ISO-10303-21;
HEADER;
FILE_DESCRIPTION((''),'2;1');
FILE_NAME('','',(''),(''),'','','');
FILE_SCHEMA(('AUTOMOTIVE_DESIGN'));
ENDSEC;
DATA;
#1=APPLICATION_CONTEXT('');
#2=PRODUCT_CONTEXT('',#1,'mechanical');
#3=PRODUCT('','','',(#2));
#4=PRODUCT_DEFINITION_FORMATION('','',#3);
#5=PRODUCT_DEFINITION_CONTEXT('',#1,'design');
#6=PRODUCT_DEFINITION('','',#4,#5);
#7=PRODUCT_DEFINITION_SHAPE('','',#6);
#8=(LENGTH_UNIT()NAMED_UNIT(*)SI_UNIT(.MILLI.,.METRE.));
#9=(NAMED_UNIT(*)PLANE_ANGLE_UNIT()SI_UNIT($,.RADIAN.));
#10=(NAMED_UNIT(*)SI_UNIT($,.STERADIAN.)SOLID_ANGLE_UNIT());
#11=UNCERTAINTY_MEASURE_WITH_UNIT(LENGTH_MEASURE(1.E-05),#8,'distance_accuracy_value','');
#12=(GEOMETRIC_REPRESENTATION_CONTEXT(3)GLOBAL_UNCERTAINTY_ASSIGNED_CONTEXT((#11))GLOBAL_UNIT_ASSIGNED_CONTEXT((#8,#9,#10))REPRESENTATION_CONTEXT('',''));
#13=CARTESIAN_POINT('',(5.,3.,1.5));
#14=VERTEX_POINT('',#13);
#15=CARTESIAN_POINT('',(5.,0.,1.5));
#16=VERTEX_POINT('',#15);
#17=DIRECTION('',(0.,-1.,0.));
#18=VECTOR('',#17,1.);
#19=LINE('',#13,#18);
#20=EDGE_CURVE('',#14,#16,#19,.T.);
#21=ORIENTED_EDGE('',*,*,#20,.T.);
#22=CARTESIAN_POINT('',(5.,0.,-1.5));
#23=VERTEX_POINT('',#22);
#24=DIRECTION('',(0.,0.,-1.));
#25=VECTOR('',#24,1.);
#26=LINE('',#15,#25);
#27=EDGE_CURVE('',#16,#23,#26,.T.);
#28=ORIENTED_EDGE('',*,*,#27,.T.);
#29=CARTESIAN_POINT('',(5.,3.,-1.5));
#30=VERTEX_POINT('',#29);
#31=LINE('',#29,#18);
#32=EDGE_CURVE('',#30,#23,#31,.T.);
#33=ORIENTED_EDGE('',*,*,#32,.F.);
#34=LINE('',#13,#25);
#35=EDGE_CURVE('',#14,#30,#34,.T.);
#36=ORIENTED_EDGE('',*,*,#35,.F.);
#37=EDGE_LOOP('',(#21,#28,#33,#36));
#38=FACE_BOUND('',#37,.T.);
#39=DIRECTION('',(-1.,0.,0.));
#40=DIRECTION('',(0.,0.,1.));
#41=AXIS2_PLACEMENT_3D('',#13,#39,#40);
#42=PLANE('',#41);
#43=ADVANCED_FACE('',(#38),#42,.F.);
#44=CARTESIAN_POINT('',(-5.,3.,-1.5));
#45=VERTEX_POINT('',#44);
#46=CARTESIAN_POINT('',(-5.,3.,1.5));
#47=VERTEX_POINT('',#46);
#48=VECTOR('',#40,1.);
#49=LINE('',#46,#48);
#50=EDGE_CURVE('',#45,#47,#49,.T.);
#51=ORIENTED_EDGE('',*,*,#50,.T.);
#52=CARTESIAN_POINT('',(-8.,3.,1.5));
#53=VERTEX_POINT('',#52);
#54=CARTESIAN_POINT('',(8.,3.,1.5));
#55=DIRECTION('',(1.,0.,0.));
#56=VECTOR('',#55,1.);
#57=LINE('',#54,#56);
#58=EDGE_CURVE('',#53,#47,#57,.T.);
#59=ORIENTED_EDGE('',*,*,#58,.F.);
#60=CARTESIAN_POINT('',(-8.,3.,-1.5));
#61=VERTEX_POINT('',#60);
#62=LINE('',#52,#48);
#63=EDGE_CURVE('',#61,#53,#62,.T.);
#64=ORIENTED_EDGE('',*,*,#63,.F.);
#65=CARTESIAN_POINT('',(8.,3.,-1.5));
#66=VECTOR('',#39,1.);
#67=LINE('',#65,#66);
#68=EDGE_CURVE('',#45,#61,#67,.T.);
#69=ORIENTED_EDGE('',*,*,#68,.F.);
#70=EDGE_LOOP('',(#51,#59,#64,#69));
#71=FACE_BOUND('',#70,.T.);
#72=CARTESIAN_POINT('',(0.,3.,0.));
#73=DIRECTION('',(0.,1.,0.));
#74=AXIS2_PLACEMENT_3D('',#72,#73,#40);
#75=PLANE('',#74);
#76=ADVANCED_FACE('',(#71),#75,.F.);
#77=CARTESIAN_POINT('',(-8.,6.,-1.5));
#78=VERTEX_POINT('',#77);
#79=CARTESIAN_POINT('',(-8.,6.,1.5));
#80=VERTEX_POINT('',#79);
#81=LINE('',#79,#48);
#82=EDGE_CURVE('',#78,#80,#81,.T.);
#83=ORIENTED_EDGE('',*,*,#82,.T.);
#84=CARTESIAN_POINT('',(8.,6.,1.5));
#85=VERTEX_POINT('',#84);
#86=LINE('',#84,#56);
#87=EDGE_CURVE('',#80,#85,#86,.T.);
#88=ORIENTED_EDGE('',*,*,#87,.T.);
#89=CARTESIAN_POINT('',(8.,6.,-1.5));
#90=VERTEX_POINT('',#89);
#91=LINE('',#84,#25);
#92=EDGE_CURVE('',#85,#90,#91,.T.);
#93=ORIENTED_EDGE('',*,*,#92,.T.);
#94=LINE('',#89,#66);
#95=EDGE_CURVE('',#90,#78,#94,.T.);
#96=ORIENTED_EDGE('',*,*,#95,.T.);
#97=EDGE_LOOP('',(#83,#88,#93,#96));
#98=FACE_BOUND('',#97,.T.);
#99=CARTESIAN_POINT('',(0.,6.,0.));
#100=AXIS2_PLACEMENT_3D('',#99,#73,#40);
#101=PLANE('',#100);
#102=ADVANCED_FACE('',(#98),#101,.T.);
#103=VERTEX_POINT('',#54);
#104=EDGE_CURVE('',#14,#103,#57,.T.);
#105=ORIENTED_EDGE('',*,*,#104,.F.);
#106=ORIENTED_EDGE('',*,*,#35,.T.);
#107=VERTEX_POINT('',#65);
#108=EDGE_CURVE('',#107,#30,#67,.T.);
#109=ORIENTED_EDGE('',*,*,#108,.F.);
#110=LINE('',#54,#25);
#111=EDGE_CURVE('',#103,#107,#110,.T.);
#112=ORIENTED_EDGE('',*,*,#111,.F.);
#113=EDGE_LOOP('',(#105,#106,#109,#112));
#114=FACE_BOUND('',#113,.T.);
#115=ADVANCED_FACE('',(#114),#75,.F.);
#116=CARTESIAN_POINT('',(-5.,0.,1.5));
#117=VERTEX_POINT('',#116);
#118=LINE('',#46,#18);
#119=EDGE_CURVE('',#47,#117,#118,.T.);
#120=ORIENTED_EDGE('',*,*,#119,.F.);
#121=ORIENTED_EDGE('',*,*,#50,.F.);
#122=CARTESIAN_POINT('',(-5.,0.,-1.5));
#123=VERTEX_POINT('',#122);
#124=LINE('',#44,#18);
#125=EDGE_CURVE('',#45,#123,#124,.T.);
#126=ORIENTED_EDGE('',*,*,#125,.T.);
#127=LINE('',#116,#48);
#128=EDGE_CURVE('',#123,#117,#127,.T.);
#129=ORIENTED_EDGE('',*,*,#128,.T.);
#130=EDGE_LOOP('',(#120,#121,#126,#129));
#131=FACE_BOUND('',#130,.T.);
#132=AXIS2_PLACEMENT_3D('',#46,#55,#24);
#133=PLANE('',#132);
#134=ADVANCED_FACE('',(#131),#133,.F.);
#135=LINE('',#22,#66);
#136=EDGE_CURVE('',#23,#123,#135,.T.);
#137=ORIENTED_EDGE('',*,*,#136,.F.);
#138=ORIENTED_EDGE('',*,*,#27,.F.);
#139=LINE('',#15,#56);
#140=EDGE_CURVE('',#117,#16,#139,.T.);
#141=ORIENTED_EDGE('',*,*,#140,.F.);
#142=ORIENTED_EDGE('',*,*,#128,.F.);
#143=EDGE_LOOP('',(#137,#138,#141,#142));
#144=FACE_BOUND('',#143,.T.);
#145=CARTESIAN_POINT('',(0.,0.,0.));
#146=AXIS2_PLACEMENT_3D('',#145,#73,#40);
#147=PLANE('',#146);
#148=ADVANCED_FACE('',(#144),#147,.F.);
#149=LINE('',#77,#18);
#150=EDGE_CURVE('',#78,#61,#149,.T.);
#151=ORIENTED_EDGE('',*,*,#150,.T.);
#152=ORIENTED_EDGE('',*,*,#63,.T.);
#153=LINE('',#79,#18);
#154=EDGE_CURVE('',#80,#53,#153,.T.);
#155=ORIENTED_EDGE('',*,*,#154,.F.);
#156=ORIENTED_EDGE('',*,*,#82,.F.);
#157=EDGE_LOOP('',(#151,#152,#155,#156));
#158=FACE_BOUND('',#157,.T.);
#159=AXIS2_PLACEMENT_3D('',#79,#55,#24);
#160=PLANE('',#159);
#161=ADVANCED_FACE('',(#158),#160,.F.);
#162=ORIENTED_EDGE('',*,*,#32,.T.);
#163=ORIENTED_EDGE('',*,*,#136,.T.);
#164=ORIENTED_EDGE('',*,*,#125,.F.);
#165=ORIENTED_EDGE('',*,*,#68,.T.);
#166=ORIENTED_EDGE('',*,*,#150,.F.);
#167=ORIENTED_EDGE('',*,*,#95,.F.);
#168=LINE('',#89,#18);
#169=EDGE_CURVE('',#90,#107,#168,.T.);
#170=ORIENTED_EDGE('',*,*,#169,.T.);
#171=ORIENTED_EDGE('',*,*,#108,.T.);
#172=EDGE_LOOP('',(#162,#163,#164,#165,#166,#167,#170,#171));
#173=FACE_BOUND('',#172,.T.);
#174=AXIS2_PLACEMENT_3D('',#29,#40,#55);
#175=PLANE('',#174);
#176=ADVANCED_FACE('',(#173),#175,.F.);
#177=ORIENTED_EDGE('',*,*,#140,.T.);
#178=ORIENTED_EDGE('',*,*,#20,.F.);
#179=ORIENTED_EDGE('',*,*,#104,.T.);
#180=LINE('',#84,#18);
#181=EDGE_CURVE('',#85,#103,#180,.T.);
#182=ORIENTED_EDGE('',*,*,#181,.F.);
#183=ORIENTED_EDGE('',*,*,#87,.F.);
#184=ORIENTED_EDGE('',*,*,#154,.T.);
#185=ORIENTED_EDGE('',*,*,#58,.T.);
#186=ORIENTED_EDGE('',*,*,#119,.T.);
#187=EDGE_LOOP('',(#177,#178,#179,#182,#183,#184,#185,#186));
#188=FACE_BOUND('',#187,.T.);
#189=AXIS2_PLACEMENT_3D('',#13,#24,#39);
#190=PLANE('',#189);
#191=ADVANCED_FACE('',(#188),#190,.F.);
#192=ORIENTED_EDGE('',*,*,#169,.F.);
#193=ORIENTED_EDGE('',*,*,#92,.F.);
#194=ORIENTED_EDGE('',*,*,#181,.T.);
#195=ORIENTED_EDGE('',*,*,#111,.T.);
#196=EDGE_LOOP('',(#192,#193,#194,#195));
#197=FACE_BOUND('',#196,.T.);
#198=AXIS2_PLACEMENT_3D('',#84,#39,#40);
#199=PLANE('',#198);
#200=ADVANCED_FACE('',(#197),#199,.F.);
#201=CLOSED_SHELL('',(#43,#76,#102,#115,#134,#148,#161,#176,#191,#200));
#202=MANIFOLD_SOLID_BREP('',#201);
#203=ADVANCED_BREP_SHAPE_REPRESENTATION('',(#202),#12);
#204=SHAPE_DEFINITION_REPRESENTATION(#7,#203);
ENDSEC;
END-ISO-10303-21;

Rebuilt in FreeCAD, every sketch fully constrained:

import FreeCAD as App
import Part
import Sketcher
from FreeCAD import Vector
Q = App.Units.Quantity

doc = App.newDocument("Part")
body = doc.addObject("PartDesign::Body", "Body")

sketch1 = body.newObject("Sketcher::SketchObject", "Sketch")
sketch1.AttachmentSupport = (doc.getObject("XZ_Plane"), [""])
sketch1.MapMode = "FlatFace"
sketch1.addGeometry(Part.LineSegment(Vector(-5, -1.5, 0), Vector(-5, 1.5, 0)), False)
sketch1.addGeometry(Part.LineSegment(Vector(-5, 1.5, 0), Vector(5, 1.5, 0)), False)
sketch1.addGeometry(Part.LineSegment(Vector(5, 1.5, 0), Vector(5, -1.5, 0)), False)
sketch1.addGeometry(Part.LineSegment(Vector(5, -1.5, 0), Vector(-5, -1.5, 0)), False)
sketch1.addConstraint(Sketcher.Constraint("Coincident", 0, 2, 1, 1))
sketch1.addConstraint(Sketcher.Constraint("Coincident", 1, 2, 2, 1))
sketch1.addConstraint(Sketcher.Constraint("Coincident", 2, 2, 3, 1))
sketch1.addConstraint(Sketcher.Constraint("Coincident", 3, 2, 0, 1))
sketch1.addConstraint(Sketcher.Constraint("Vertical", 0))
sketch1.addConstraint(Sketcher.Constraint("Horizontal", 1))
sketch1.addConstraint(Sketcher.Constraint("Vertical", 2))
sketch1.addConstraint(Sketcher.Constraint("Horizontal", 3))
sketch1.addConstraint(Sketcher.Constraint("Symmetric", 0, 2, 2, 2, -1, 1))
sketch1.addConstraint(Sketcher.Constraint("DistanceX", 1, 1, 1, 2, Q("10 mm")))
sketch1.addConstraint(Sketcher.Constraint("DistanceY", 0, 1, 0, 2, Q("3 mm")))
pad1 = body.newObject("PartDesign::Pad", "Pad")
pad1.Profile = sketch1
pad1.Length = 3
pad1.Reversed = True

sketch2 = body.newObject("Sketcher::SketchObject", "Sketch001")
sketch2.AttachmentSupport = (doc.getObject("XZ_Plane"), [""])
sketch2.MapMode = "FlatFace"
sketch2.AttachmentOffset = App.Placement(Vector(0, 0, -3), App.Rotation())
sketch2.addGeometry(Part.LineSegment(Vector(-8, -1.5, 0), Vector(-8, 1.5, 0)), False)
sketch2.addGeometry(Part.LineSegment(Vector(-8, 1.5, 0), Vector(8, 1.5, 0)), False)
sketch2.addGeometry(Part.LineSegment(Vector(8, 1.5, 0), Vector(8, -1.5, 0)), False)
sketch2.addGeometry(Part.LineSegment(Vector(8, -1.5, 0), Vector(-8, -1.5, 0)), False)
sketch2.addConstraint(Sketcher.Constraint("Coincident", 0, 2, 1, 1))
sketch2.addConstraint(Sketcher.Constraint("Coincident", 1, 2, 2, 1))
sketch2.addConstraint(Sketcher.Constraint("Coincident", 2, 2, 3, 1))
sketch2.addConstraint(Sketcher.Constraint("Coincident", 3, 2, 0, 1))
sketch2.addConstraint(Sketcher.Constraint("Vertical", 0))
sketch2.addConstraint(Sketcher.Constraint("Horizontal", 1))
sketch2.addConstraint(Sketcher.Constraint("Vertical", 2))
sketch2.addConstraint(Sketcher.Constraint("Horizontal", 3))
sketch2.addConstraint(Sketcher.Constraint("Symmetric", 0, 2, 2, 2, -1, 1))
sketch2.addConstraint(Sketcher.Constraint("DistanceX", 1, 1, 1, 2, Q("16 mm")))
sketch2.addConstraint(Sketcher.Constraint("DistanceY", 0, 1, 0, 2, Q("3 mm")))
pad2 = body.newObject("PartDesign::Pad", "Pad001")
pad2.Profile = sketch2
pad2.Length = 3
pad2.Reversed = True

doc.recompute()
